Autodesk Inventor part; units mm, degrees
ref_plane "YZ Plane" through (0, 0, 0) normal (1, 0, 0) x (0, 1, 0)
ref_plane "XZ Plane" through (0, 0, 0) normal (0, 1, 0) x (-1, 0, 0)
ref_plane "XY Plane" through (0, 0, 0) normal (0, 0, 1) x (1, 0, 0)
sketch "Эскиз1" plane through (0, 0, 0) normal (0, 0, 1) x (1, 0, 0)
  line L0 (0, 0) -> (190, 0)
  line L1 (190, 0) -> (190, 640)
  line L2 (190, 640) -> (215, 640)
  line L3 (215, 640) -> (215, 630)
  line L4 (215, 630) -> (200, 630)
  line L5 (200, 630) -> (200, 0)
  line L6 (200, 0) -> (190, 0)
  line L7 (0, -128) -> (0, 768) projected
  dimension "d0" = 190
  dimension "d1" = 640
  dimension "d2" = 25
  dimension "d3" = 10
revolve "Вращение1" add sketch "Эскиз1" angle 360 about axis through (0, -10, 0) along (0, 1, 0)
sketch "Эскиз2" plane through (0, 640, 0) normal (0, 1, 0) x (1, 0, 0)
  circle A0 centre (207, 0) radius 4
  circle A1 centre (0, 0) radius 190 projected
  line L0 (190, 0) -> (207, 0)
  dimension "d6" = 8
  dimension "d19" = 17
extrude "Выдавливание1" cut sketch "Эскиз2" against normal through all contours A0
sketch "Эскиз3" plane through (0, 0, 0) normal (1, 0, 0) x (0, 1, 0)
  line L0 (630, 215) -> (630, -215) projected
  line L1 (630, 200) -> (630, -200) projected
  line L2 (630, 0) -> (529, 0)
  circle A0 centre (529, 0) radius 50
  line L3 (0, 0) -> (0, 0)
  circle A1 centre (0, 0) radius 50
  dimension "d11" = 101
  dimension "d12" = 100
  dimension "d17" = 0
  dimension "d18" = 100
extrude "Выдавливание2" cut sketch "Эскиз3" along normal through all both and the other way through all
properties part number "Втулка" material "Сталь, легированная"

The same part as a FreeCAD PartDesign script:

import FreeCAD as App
import Part
import Sketcher
Q = App.Units.Quantity


def add_polygon(sketch, points):
    """Adds a closed chain of lines whose ends are joined by coincident constraints."""
    first, n = sketch.GeometryCount, len(points)
    for a, b in zip(points, points[1:] + points[:1]):
        sketch.addGeometry(Part.LineSegment(App.Vector(*a, 0), App.Vector(*b, 0)), False)
    for i in range(n):
        sketch.addConstraint(Sketcher.Constraint("Coincident", first + i, 2, first + (i + 1) % n, 1))

doc = App.newDocument("Part")
body = doc.addObject("PartDesign::Body", "Body")

sketch1 = body.newObject("Sketcher::SketchObject", "Sketch")
sketch1.AttachmentSupport = (doc.getObject("XY_Plane"), [""])
sketch1.MapMode = "FlatFace"
add_polygon(sketch1, [(190, 640), (190, 0), (200, 0), (200, 630), (215, 630), (215, 640)])
sketch1.addConstraint([
    Sketcher.Constraint("Vertical", 0),
    Sketcher.Constraint("Horizontal", 1),
    Sketcher.Constraint("Vertical", 2),
    Sketcher.Constraint("Horizontal", 3),
    Sketcher.Constraint("Vertical", 4),
    Sketcher.Constraint("Horizontal", 5),
    Sketcher.Constraint("PointOnObject", 0, 2, -1),
    Sketcher.Constraint("Equal", 1, 4),
    Sketcher.Constraint("DistanceX", 1, 1, 1, 2, Q("10 mm")),
    Sketcher.Constraint("DistanceX", 5, 2, 5, 1, Q("25 mm")),
    Sketcher.Constraint("DistanceY", 0, 2, 0, 1, Q("640 mm")),
    Sketcher.Constraint("DistanceX", -1, 1, 0, 2, Q("190 mm")),
])
revolution = body.newObject("PartDesign::Revolution", "Revolution")
revolution.Profile = sketch1
revolution.ReferenceAxis = (sketch1, ["V_Axis"])
revolution.Angle = 360

sketch2 = body.newObject("Sketcher::SketchObject", "Sketch001")
sketch2.AttachmentSupport = (doc.getObject("XZ_Plane"), [""])
sketch2.MapMode = "FlatFace"
sketch2.AttachmentOffset = App.Placement(App.Vector(0, 0, -640), App.Rotation())
sketch2.addGeometry(Part.Circle(App.Vector(207, 0, 0), App.Vector(0, 0, 1), 4), False)
sketch2.addConstraint([
    Sketcher.Constraint("PointOnObject", 0, 3, -1),
    Sketcher.Constraint("Diameter", 0, Q("8 mm")),
    Sketcher.Constraint("DistanceX", -1, 1, 0, 3, Q("207 mm")),
])
pocket1 = body.newObject("PartDesign::Pocket", "Pocket")
pocket1.Profile = sketch2
pocket1.Type = "ThroughAll"
pocket1.Reversed = True

sketch3 = body.newObject("Sketcher::SketchObject", "Sketch002")
sketch3.AttachmentSupport = (doc.getObject("YZ_Plane"), [""])
sketch3.MapMode = "FlatFace"
sketch3.addGeometry([
    Part.Circle(App.Vector(529, 0, 0), App.Vector(0, 0, 1), 50),
    Part.Circle(App.Vector(0, 0, 0), App.Vector(0, 0, 1), 50),
], False)
sketch3.addConstraint([
    Sketcher.Constraint("Coincident", 1, 3, -1, 1),
    Sketcher.Constraint("Equal", 0, 1),
    Sketcher.Constraint("PointOnObject", 0, 3, -1),
    Sketcher.Constraint("Diameter", 0, Q("100 mm")),
    Sketcher.Constraint("DistanceX", -1, 1, 0, 3, Q("529 mm")),
])
pocket2 = body.newObject("PartDesign::Pocket", "Pocket001")
pocket2.Profile = sketch3
pocket2.Type = "ThroughAll"
pocket2.Midplane = True

doc.recompute()
